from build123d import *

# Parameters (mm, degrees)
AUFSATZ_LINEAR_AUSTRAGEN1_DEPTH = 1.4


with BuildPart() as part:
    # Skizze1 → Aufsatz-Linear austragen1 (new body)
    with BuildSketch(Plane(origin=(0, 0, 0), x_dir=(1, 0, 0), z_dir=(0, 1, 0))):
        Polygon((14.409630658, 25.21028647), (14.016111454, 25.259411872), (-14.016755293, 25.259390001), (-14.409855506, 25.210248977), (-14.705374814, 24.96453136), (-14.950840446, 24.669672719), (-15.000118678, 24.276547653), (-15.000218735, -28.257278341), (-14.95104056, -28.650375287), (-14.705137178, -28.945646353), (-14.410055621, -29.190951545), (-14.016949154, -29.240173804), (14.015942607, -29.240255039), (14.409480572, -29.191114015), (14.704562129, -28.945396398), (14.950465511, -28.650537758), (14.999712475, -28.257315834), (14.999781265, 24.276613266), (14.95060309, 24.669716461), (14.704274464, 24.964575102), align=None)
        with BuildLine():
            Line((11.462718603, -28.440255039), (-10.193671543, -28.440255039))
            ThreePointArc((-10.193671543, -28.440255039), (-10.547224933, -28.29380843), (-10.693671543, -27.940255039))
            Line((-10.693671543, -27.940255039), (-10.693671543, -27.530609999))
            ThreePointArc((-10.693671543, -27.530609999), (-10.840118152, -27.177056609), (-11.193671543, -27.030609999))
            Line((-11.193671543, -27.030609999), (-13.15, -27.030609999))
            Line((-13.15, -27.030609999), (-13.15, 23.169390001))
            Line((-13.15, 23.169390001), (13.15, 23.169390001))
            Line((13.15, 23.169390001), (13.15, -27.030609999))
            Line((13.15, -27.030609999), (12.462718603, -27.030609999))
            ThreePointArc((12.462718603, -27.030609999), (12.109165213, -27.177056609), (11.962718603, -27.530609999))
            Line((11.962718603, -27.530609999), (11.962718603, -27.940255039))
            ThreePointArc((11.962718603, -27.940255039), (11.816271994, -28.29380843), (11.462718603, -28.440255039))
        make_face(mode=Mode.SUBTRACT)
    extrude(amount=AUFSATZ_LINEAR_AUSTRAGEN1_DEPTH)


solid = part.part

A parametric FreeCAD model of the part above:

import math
import FreeCAD as App
import Part
import Sketcher
Q = App.Units.Quantity


def add_polygon(sketch, points):
    """Adds a closed chain of lines whose ends are joined by coincident constraints."""
    first, n = sketch.GeometryCount, len(points)
    for a, b in zip(points, points[1:] + points[:1]):
        sketch.addGeometry(Part.LineSegment(App.Vector(*a, 0), App.Vector(*b, 0)), False)
    for i in range(n):
        sketch.addConstraint(Sketcher.Constraint("Coincident", first + i, 2, first + (i + 1) % n, 1))

doc = App.newDocument("Part")
body = doc.addObject("PartDesign::Body", "Body")

# Sketch on XZ plane
sketch1 = body.newObject("Sketcher::SketchObject", "Sketch")
sketch1.AttachmentSupport = (doc.getObject("XZ_Plane"), [""])
sketch1.MapMode = "FlatFace"
add_polygon(sketch1, [(14.409631, -25.210286), (14.016111, -25.259412), (-14.016755, -25.25939), (-14.409856, -25.210249), (-14.705375, -24.964531), (-14.95084, -24.669673), (-15.000119, -24.276548), (-15.000219, 28.257278), (-14.951041, 28.650375), (-14.705137, 28.945646), (-14.410056, 29.190952), (-14.016949, 29.240174), (14.015943, 29.240255), (14.409481, 29.191114), (14.704562, 28.945396), (14.950466, 28.650538), (14.999712, 28.257316), (14.999781, -24.276613), (14.950603, -24.669716), (14.704274, -24.964575)])  # lines 0-19
sketch1.addGeometry(Part.ArcOfCircle(Part.Circle(App.Vector(11.462719, 27.940255, 0), App.Vector(0, 0, 1), 0.5), math.radians(0), math.radians(90)), False)  # 20
sketch1.addGeometry(Part.LineSegment(App.Vector(11.462719, 28.440255, 0), App.Vector(-10.193672, 28.440255, 0)), False)  # 21
sketch1.addGeometry(Part.ArcOfCircle(Part.Circle(App.Vector(-10.193672, 27.940255, 0), App.Vector(0, 0, 1), 0.5), math.radians(90), math.radians(180)), False)  # 22
sketch1.addGeometry(Part.LineSegment(App.Vector(-10.693672, 27.940255, 0), App.Vector(-10.693672, 27.53061, 0)), False)  # 23
sketch1.addGeometry(Part.ArcOfCircle(Part.Circle(App.Vector(-11.193672, 27.53061, 0), App.Vector(0, 0, 1), 0.5), math.radians(-90), math.radians(0)), False)  # 24
sketch1.addGeometry(Part.LineSegment(App.Vector(-11.193672, 27.03061, 0), App.Vector(-13.15, 27.03061, 0)), False)  # 25
sketch1.addGeometry(Part.LineSegment(App.Vector(-13.15, 27.03061, 0), App.Vector(-13.15, -23.16939, 0)), False)  # 26
sketch1.addGeometry(Part.LineSegment(App.Vector(-13.15, -23.16939, 0), App.Vector(13.15, -23.16939, 0)), False)  # 27
sketch1.addGeometry(Part.LineSegment(App.Vector(13.15, -23.16939, 0), App.Vector(13.15, 27.03061, 0)), False)  # 28
sketch1.addGeometry(Part.LineSegment(App.Vector(13.15, 27.03061, 0), App.Vector(12.462719, 27.03061, 0)), False)  # 29
sketch1.addGeometry(Part.ArcOfCircle(Part.Circle(App.Vector(12.462719, 27.53061, 0), App.Vector(0, 0, 1), 0.5), math.radians(-180), math.radians(-90)), False)  # 30
sketch1.addGeometry(Part.LineSegment(App.Vector(11.962719, 27.53061, 0), App.Vector(11.962719, 27.940255, 0)), False)  # 31
sketch1.addConstraint([
    Sketcher.Constraint("Coincident", 20, 2, 21, 1),
    Sketcher.Constraint("Coincident", 21, 2, 22, 1),
    Sketcher.Constraint("Coincident", 22, 2, 23, 1),
    Sketcher.Constraint("Coincident", 23, 2, 24, 2),
    Sketcher.Constraint("Coincident", 24, 1, 25, 1),
    Sketcher.Constraint("Coincident", 25, 2, 26, 1),
    Sketcher.Constraint("Coincident", 26, 2, 27, 1),
    Sketcher.Constraint("Coincident", 27, 2, 28, 1),
    Sketcher.Constraint("Coincident", 28, 2, 29, 1),
    Sketcher.Constraint("Coincident", 29, 2, 30, 2),
    Sketcher.Constraint("Coincident", 30, 1, 31, 1),
    Sketcher.Constraint("Coincident", 31, 2, 20, 1),
    Sketcher.Constraint("Horizontal", 21),
    Sketcher.Constraint("Vertical", 23),
    Sketcher.Constraint("Horizontal", 25),
    Sketcher.Constraint("Vertical", 26),
    Sketcher.Constraint("Horizontal", 27),
    Sketcher.Constraint("Vertical", 28),
    Sketcher.Constraint("Horizontal", 29),
    Sketcher.Constraint("Vertical", 31),
    Sketcher.Constraint("Radius", 20, Q("0.5 mm")),
    Sketcher.Constraint("Radius", 22, Q("0.5 mm")),
    Sketcher.Constraint("Radius", 24, Q("0.5 mm")),
    Sketcher.Constraint("Radius", 30, Q("0.5 mm")),
    Sketcher.Constraint("DistanceX", 27, 1, 27, 2, Q("26.3 mm")),
    Sketcher.Constraint("DistanceY", 26, 2, 26, 1, Q("50.2 mm")),
    Sketcher.Constraint("DistanceY", 28, 1, 28, 2, Q("50.2 mm")),
    Sketcher.Constraint("DistanceX", 20, 2, 30, 3, Q("1 mm")),
    Sketcher.Constraint("DistanceX", 24, 3, 21, 2, Q("1 mm")),
    Sketcher.Constraint("DistanceX", 24, 1, 22, 3, Q("1 mm")),
    Sketcher.Constraint("DistanceX", 20, 3, 29, 2, Q("1 mm")),
    Sketcher.Constraint("DistanceY", 20, 3, 11, 2, Q("1.3 mm")),
    Sketcher.Constraint("DistanceY", 22, 2, 21, 2, Q("0.5 mm")),
    Sketcher.Constraint("DistanceY", 24, 1, 23, 2, Q("0.5 mm")),
    Sketcher.Constraint("DistanceY", 29, 2, 30, 1, Q("0.5 mm")),
    Sketcher.Constraint("DistanceY", 31, 2, 20, 2, Q("0.5 mm")),
    Sketcher.Constraint("DistanceX", 25, 2, -1, 1, Q("13.15 mm")),
    Sketcher.Constraint("DistanceY", 1, 2, 24, 3, Q("52.79 mm")),
    Sketcher.Constraint("Distance", 5, Q("0.396202 mm")),
    Sketcher.Constraint("DistanceX", 21, 2, 21, 1, Q("21.65639 mm")),
    Sketcher.Constraint("DistanceX", 25, 2, 25, 1, Q("1.956328 mm")),
    Sketcher.Constraint("DistanceX", 2, 2, 1, 2, Q("0.3931 mm")),
    Sketcher.Constraint("DistanceY", 2, 2, 5, 2, Q("0.933701 mm")),
    Sketcher.Constraint("DistanceX", 6, 2, 5, 2, Q("0.0001 mm")),
    Sketcher.Constraint("DistanceY", 7, 2, 10, 2, Q("0.589799 mm")),
    Sketcher.Constraint("DistanceY", 15, 2, 12, 2, Q("0.933798 mm")),
    Sketcher.Constraint("DistanceY", 0, 2, 16, 2, Q("0.982799 mm")),
    Sketcher.Constraint("Distance", 2, Q("0.39616 mm")),
    Sketcher.Constraint("Distance", 3, Q("0.384329 mm")),
    Sketcher.Constraint("Distance", 4, Q("0.38366 mm")),
    Sketcher.Constraint("Distance", 7, Q("0.396161 mm")),
    Sketcher.Constraint("Distance", 9, Q("0.383729 mm")),
    Sketcher.Constraint("Distance", 11, Q("28.032892 mm")),
    Sketcher.Constraint("Distance", 14, Q("0.38394 mm")),
    Sketcher.Constraint("Distance", 16, Q("52.533929 mm")),
    Sketcher.Constraint("DistanceY", 23, 2, 23, 1, Q("0.409645 mm")),
    Sketcher.Constraint("DistanceY", -1, 1, 24, 3, Q("27.53061 mm")),
    Sketcher.Constraint("DistanceX", -1, 1, 0, 2, Q("14.016111 mm")),
    Sketcher.Constraint("DistanceY", 0, 2, -1, 1, Q("25.259412 mm")),
    Sketcher.Constraint("DistanceY", 3, 2, -1, 1, Q("24.964531 mm")),
    Sketcher.Constraint("DistanceX", 4, 2, -1, 1, Q("14.95084 mm")),
    Sketcher.Constraint("DistanceX", 5, 2, -1, 1, Q("15.000119 mm")),
    Sketcher.Constraint("DistanceY", -1, 1, 6, 2, Q("28.257278 mm")),
    Sketcher.Constraint("DistanceX", 7, 2, -1, 1, Q("14.951041 mm")),
    Sketcher.Constraint("DistanceY", -1, 1, 9, 2, Q("29.190952 mm")),
    Sketcher.Constraint("DistanceX", 10, 2, -1, 1, Q("14.016949 mm")),
    Sketcher.Constraint("DistanceX", -1, 1, 12, 2, Q("14.409481 mm")),
    Sketcher.Constraint("DistanceX", -1, 1, 16, 2, Q("14.999781 mm")),
    Sketcher.Constraint("DistanceX", -1, 1, 19, 2, Q("14.409631 mm")),
    Sketcher.Constraint("DistanceY", 7, 2, 8, 2, Q("0.295271 mm")),
    Sketcher.Constraint("DistanceX", 6, 2, 8, 2, Q("0.295082 mm")),
    Sketcher.Constraint("DistanceX", 12, 2, 13, 2, Q("0.295082 mm")),
    Sketcher.Constraint("DistanceY", 13, 2, 11, 2, Q("0.294859 mm")),
    Sketcher.Constraint("DistanceY", 14, 2, 13, 2, Q("0.294859 mm")),
    Sketcher.Constraint("DistanceX", 13, 2, 15, 2, Q("0.29515 mm")),
    Sketcher.Constraint("DistanceX", 17, 2, 16, 2, Q("0.049178 mm")),
    Sketcher.Constraint("DistanceX", 18, 2, 17, 2, Q("0.246329 mm")),
    Sketcher.Constraint("DistanceY", 18, 2, 17, 2, Q("0.294859 mm")),
    Sketcher.Constraint("DistanceY", 18, 2, 16, 2, Q("0.687962 mm")),
    Sketcher.Constraint("DistanceY", 19, 2, 18, 2, Q("0.245711 mm")),
])
pad1 = body.newObject("PartDesign::Pad", "Pad")
pad1.Profile = sketch1
pad1.Length = 1.4
pad1.Reversed = True

doc.recompute()
